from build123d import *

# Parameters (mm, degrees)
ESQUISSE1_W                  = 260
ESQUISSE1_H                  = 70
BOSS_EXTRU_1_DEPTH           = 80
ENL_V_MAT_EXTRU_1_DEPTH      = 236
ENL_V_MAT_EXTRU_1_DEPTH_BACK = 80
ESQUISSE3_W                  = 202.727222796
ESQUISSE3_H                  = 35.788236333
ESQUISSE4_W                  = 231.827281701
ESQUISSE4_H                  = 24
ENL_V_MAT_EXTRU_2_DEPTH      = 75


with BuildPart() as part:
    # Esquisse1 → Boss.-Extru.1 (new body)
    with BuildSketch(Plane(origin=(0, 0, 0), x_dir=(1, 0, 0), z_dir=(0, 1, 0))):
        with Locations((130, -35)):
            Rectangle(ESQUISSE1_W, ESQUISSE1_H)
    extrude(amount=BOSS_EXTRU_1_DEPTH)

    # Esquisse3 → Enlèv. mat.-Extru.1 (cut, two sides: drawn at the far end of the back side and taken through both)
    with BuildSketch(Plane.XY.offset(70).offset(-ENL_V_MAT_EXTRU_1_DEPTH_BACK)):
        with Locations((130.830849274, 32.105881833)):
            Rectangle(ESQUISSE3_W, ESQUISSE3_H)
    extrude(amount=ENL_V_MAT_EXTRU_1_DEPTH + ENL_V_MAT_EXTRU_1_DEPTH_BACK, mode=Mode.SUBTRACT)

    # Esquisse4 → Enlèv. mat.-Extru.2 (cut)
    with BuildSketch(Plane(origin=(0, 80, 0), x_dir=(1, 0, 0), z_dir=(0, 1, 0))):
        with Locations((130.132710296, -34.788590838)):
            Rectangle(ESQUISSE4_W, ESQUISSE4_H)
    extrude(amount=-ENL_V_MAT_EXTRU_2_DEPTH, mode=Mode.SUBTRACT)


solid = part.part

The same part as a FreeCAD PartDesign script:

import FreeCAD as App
import Part
import Sketcher

V = App.Vector


def add_polygon(sketch, points):
    """Adds a closed chain of lines whose ends are joined by coincident constraints."""
    first, n = sketch.GeometryCount, len(points)
    for a, b in zip(points, points[1:] + points[:1]):
        sketch.addGeometry(Part.LineSegment(App.Vector(*a, 0), App.Vector(*b, 0)), False)
    for i in range(n):
        sketch.addConstraint(Sketcher.Constraint("Coincident", first + i, 2, first + (i + 1) % n, 1))

doc = App.newDocument("Part")
body = doc.addObject("PartDesign::Body", "Body")

# Sketch on XZ plane
sketch1 = body.newObject("Sketcher::SketchObject", "Sketch")
sketch1.AttachmentSupport = (doc.getObject("XZ_Plane"), [""])
sketch1.MapMode = "FlatFace"
add_polygon(sketch1, [(0, 0), (0, 70), (260, 70), (260, 0)])  # lines 0-3
sketch1.addConstraint([
    Sketcher.Constraint("Vertical", 0),
    Sketcher.Constraint("Horizontal", 1),
    Sketcher.Constraint("Vertical", 2),
    Sketcher.Constraint("Horizontal", 3),
    Sketcher.Constraint("Coincident", 3, 2, -1, 1),
    Sketcher.Constraint("DistanceX", 1, 1, 1, 2, 260.0),
    Sketcher.Constraint("DistanceY", 0, 1, 0, 2, 70.0),
])
pad1 = body.newObject("PartDesign::Pad", "Pad")
pad1.Profile = sketch1
pad1.Length = 80
pad1.Reversed = True

# Sketch on XY plane
sketch2 = body.newObject("Sketcher::SketchObject", "Sketch001")
sketch2.AttachmentSupport = (doc.getObject("XY_Plane"), [""])
sketch2.MapMode = "FlatFace"
sketch2.AttachmentOffset = App.Placement(V(0, 0, 70), App.Rotation())
add_polygon(sketch2, [(29, 50), (29, 14), (232, 14), (232, 50)])  # lines 0-3
sketch2.addConstraint([
    Sketcher.Constraint("Vertical", 0),
    Sketcher.Constraint("Horizontal", 1),
    Sketcher.Constraint("Vertical", 2),
    Sketcher.Constraint("Horizontal", 3),
    Sketcher.Constraint("DistanceY", -1, 1, 2, 2, 50.0),
    Sketcher.Constraint("DistanceX", 1, 1, 1, 2, 202.727223),
    Sketcher.Constraint("DistanceY", 0, 2, 0, 1, 35.788236),
    Sketcher.Constraint("DistanceX", -1, 1, 1, 2, 232.194461),
])
pocket1 = body.newObject("PartDesign::Pocket", "Pocket")
pocket1.Profile = sketch2
pocket1.Type = "ThroughAll"
pocket1.Midplane = True

# Sketch on XZ plane
sketch3 = body.newObject("Sketcher::SketchObject", "Sketch002")
sketch3.AttachmentSupport = (doc.getObject("XZ_Plane"), [""])
sketch3.MapMode = "FlatFace"
sketch3.AttachmentOffset = App.Placement(V(0, 0, -80), App.Rotation())
add_polygon(sketch3, [(14, 23), (14, 47), (246, 47), (246, 23)])  # lines 0-3
sketch3.addConstraint([
    Sketcher.Constraint("Vertical", 0),
    Sketcher.Constraint("Horizontal", 1),
    Sketcher.Constraint("Vertical", 2),
    Sketcher.Constraint("Horizontal", 3),
    Sketcher.Constraint("DistanceY", 0, 1, 0, 2, 24.0),
    Sketcher.Constraint("DistanceX", 1, 1, 1, 2, 231.827282),
    Sketcher.Constraint("DistanceX", -1, 1, 0, 2, 14.219069),
    Sketcher.Constraint("DistanceY", -1, 1, 0, 2, 46.788591),
])
pocket2 = body.newObject("PartDesign::Pocket", "Pocket001")
pocket2.Profile = sketch3
pocket2.Length = 75
pocket2.Reversed = True

doc.recompute()
